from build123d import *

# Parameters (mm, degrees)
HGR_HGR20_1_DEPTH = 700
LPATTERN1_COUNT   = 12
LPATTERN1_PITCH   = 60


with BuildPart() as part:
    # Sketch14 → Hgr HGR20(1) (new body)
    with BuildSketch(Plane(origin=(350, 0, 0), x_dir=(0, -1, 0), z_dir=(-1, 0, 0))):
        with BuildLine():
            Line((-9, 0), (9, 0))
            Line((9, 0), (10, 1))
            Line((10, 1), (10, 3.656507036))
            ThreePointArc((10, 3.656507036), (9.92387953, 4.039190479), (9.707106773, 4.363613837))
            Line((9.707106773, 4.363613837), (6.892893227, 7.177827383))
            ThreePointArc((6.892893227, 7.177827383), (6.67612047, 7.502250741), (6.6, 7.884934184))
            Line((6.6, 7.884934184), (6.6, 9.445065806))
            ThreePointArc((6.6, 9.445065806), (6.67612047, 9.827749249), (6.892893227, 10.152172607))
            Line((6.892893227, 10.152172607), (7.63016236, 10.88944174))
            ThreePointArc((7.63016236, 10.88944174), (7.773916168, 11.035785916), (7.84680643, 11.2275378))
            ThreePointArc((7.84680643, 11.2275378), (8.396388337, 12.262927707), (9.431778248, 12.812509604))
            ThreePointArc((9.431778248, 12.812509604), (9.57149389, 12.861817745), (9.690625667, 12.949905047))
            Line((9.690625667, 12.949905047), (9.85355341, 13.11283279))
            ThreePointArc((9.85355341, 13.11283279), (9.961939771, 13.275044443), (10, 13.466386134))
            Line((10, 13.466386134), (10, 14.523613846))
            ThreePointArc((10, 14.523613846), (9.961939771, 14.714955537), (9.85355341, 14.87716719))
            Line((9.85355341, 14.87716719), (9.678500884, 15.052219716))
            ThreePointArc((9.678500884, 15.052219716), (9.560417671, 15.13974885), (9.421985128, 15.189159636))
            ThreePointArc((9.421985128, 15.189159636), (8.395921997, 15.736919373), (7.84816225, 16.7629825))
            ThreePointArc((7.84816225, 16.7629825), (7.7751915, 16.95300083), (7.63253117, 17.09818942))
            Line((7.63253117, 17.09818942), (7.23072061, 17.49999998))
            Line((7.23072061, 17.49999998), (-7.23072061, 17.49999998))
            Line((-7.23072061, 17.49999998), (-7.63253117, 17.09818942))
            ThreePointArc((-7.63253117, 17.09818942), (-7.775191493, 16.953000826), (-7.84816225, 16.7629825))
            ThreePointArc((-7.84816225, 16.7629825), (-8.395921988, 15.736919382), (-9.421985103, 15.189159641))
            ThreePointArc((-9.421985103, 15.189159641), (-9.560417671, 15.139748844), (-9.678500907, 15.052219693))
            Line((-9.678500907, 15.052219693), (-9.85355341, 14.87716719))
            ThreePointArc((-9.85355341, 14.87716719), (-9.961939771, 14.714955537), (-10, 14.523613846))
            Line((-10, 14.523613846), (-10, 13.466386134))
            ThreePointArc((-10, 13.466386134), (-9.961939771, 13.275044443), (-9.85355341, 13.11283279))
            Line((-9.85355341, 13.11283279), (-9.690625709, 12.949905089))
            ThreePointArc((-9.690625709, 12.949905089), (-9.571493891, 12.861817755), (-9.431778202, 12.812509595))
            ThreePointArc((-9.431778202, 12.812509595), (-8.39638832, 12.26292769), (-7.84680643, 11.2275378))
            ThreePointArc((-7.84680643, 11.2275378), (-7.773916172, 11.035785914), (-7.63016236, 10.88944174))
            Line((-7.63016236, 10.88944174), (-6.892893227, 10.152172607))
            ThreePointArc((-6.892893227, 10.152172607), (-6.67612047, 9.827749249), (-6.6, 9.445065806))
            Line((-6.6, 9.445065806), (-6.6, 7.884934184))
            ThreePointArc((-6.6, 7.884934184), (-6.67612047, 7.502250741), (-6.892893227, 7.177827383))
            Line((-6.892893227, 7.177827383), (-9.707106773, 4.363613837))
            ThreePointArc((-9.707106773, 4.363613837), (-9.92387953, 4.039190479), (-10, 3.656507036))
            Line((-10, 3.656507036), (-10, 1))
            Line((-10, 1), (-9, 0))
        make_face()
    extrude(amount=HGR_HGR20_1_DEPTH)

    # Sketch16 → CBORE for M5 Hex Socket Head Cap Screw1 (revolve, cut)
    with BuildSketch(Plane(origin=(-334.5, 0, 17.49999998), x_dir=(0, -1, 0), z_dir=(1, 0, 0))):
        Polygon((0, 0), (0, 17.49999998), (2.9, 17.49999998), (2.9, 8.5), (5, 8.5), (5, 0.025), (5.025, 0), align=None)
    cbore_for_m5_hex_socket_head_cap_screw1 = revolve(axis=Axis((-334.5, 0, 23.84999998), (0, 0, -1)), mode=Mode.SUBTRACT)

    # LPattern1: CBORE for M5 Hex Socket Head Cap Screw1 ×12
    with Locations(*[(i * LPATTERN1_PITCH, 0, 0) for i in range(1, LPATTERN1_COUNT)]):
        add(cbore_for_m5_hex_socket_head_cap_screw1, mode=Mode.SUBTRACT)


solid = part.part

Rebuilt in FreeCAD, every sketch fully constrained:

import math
import FreeCAD as App
import Part
import Sketcher

V = App.Vector
Q = App.Units.Quantity


def add_polygon(sketch, points):
    """Adds a closed chain of lines whose ends are joined by coincident constraints."""
    first, n = sketch.GeometryCount, len(points)
    for a, b in zip(points, points[1:] + points[:1]):
        sketch.addGeometry(Part.LineSegment(App.Vector(*a, 0), App.Vector(*b, 0)), False)
    for i in range(n):
        sketch.addConstraint(Sketcher.Constraint("Coincident", first + i, 2, first + (i + 1) % n, 1))

doc = App.newDocument("Part")
params = doc.addObject("Spreadsheet::Sheet", "Params")
for row, (alias, value) in enumerate([
    ("sketch1_radius", "1 mm"),
    ("sketch1_radius2", "1 mm"),
    ("sketch1_radius3", "1 mm"),
    ("sketch1_radius4", "2 mm"),
    ("sketch1_radius5", "2 mm"),
    ("pad1_length", "700 mm"),
    ("sketch2_height", "9 mm"),
    ("sketch2_width", "2.1 mm"),
    ("sketch2_width2", "2.9 mm"),
    ("sketch2_height2", "17.5 mm"),
    ("groove_angle", "360 deg"),
    ("linearpattern_pitch", "60 mm"),
], start=1):
    params.set(f"A{row}", alias)
    params.set(f"B{row}", "=" + value)
    params.setAlias(f"B{row}", alias)

body = doc.addObject("PartDesign::Body", "Body")

# Sketch on YZ plane
sketch1 = body.newObject("Sketcher::SketchObject", "Sketch")
sketch1.AttachmentSupport = (doc.getObject("YZ_Plane"), [""])
sketch1.MapMode = "FlatFace"
sketch1.AttachmentOffset = App.Placement(V(0, 0, 350), App.Rotation())
sketch1.addGeometry(Part.LineSegment(V(9, 0, 0), V(-9, 0, 0)), False)
sketch1.addGeometry(Part.LineSegment(V(-9, 0, 0), V(-10, 1, 0)), False)
sketch1.addGeometry(Part.LineSegment(V(-10, 1, 0), V(-10, 3.656507, 0)), False)
sketch1.addGeometry(Part.ArcOfCircle(Part.Circle(V(-9, 3.656507, 0), V(0, 0, 1), 1), math.radians(135), math.radians(180)), False)
sketch1.addGeometry(Part.LineSegment(V(-9.707107, 4.363614, 0), V(-6.892893, 7.177827, 0)), False)
sketch1.addGeometry(Part.ArcOfCircle(Part.Circle(V(-7.6, 7.884934, 0), V(0, 0, 1), 1), math.radians(-45), math.radians(0)), False)
sketch1.addGeometry(Part.LineSegment(V(-6.6, 7.884934, 0), V(-6.6, 9.445066, 0)), False)
sketch1.addGeometry(Part.ArcOfCircle(Part.Circle(V(-7.6, 9.445066, 0), V(0, 0, 1), 1), math.radians(0), math.radians(45)), False)
sketch1.addGeometry(Part.LineSegment(V(-6.892893, 10.152173, 0), V(-7.630162, 10.889442, 0)), False)
sketch1.addGeometry(Part.ArcOfCircle(Part.Circle(V(-7.352929, 11.305545, 0), V(0, 0, 1), 0.5), math.radians(-171.024402), math.radians(-123.673995)), False)
sketch1.addGeometry(Part.ArcOfCircle(Part.Circle(V(-9.810602, 10.848714, 0), V(0, 0, 1), 2), math.radians(10.918461), math.radians(79.081539)), False)
sketch1.addGeometry(Part.ArcOfCircle(Part.Circle(V(-9.337072, 13.303458, 0), V(0, 0, 1), 0.5), math.radians(-135), math.radians(-100.91846)), False)
sketch1.addGeometry(Part.LineSegment(V(-9.690626, 12.949905, 0), V(-9.853553, 13.112833, 0)), False)
sketch1.addGeometry(Part.ArcOfCircle(Part.Circle(V(-9.5, 13.466386, 0), V(0, 0, 1), 0.5), math.radians(-180), math.radians(-135)), False)
sketch1.addGeometry(Part.LineSegment(V(-10, 13.466386, 0), V(-10, 14.523614, 0)), False)
sketch1.addGeometry(Part.ArcOfCircle(Part.Circle(V(-9.5, 14.523614, 0), V(0, 0, 1), 0.5), math.radians(135), math.radians(180)), False)
sketch1.addGeometry(Part.LineSegment(V(-9.853553, 14.877167, 0), V(-9.678501, 15.05222, 0)), False)
sketch1.addGeometry(Part.ArcOfCircle(Part.Circle(V(-9.324948, 14.698666, 0), V(0, 0, 1), 0.5), math.radians(101.190705), math.radians(135)), False)
sketch1.addGeometry(Part.ArcOfCircle(Part.Circle(V(-9.810136, 17.151133, 0), V(0, 0, 1), 2), math.radians(-78.809295), math.radians(-11.190706)), False)
sketch1.addGeometry(Part.ArcOfCircle(Part.Circle(V(-7.354683, 16.682497, 0), V(0, 0, 1), 0.5), math.radians(123.758731), math.radians(170.736737)), False)
sketch1.addGeometry(Part.LineSegment(V(-7.632531, 17.098189, 0), V(-7.230721, 17.5, 0)), False)
sketch1.addGeometry(Part.LineSegment(V(-7.230721, 17.5, 0), V(7.230721, 17.5, 0)), False)
sketch1.addGeometry(Part.LineSegment(V(7.230721, 17.5, 0), V(7.632531, 17.098189, 0)), False)
sketch1.addGeometry(Part.ArcOfCircle(Part.Circle(V(7.354683, 16.682497, 0), V(0, 0, 1), 0.5), math.radians(9.263268), math.radians(56.241265)), False)
sketch1.addGeometry(Part.ArcOfCircle(Part.Circle(V(9.810136, 17.151133, 0), V(0, 0, 1), 2), math.radians(-168.809294), math.radians(-101.190706)), False)
sketch1.addGeometry(Part.ArcOfCircle(Part.Circle(V(9.324947, 14.698666, 0), V(0, 0, 1), 0.5), math.radians(45), math.radians(78.809294)), False)
sketch1.addGeometry(Part.LineSegment(V(9.678501, 15.05222, 0), V(9.853553, 14.877167, 0)), False)
sketch1.addGeometry(Part.ArcOfCircle(Part.Circle(V(9.5, 14.523614, 0), V(0, 0, 1), 0.5), math.radians(0), math.radians(45)), False)
sketch1.addGeometry(Part.LineSegment(V(10, 14.523614, 0), V(10, 13.466386, 0)), False)
sketch1.addGeometry(Part.ArcOfCircle(Part.Circle(V(9.5, 13.466386, 0), V(0, 0, 1), 0.5), math.radians(-45), math.radians(0)), False)
sketch1.addGeometry(Part.LineSegment(V(9.853553, 13.112833, 0), V(9.690626, 12.949905, 0)), False)
sketch1.addGeometry(Part.ArcOfCircle(Part.Circle(V(9.337072, 13.303459, 0), V(0, 0, 1), 0.5), math.radians(-79.081539), math.radians(-45)), False)
sketch1.addGeometry(Part.ArcOfCircle(Part.Circle(V(9.810602, 10.848714, 0), V(0, 0, 1), 2), math.radians(100.918462), math.radians(169.081539)), False)
sketch1.addGeometry(Part.ArcOfCircle(Part.Circle(V(7.352929, 11.305545, 0), V(0, 0, 1), 0.5), math.radians(-56.326007), math.radians(-8.975596)), False)
sketch1.addGeometry(Part.LineSegment(V(7.630162, 10.889442, 0), V(6.892893, 10.152173, 0)), False)
sketch1.addGeometry(Part.ArcOfCircle(Part.Circle(V(7.6, 9.445066, 0), V(0, 0, 1), 1), math.radians(135), math.radians(180)), False)
sketch1.addGeometry(Part.LineSegment(V(6.6, 9.445066, 0), V(6.6, 7.884934, 0)), False)
sketch1.addGeometry(Part.ArcOfCircle(Part.Circle(V(7.6, 7.884934, 0), V(0, 0, 1), 1), math.radians(-180), math.radians(-135)), False)
sketch1.addGeometry(Part.LineSegment(V(6.892893, 7.177827, 0), V(9.707107, 4.363614, 0)), False)
sketch1.addGeometry(Part.ArcOfCircle(Part.Circle(V(9, 3.656507, 0), V(0, 0, 1), 1), math.radians(0), math.radians(45)), False)
sketch1.addGeometry(Part.LineSegment(V(10, 3.656507, 0), V(10, 1, 0)), False)
sketch1.addGeometry(Part.LineSegment(V(10, 1, 0), V(9, 0, 0)), False)
sketch1.addConstraint(Sketcher.Constraint("Coincident", 0, 2, 1, 1))
sketch1.addConstraint(Sketcher.Constraint("Coincident", 1, 2, 2, 1))
sketch1.addConstraint(Sketcher.Constraint("Coincident", 2, 2, 3, 2))
sketch1.addConstraint(Sketcher.Constraint("Coincident", 3, 1, 4, 1))
sketch1.addConstraint(Sketcher.Constraint("Coincident", 4, 2, 5, 1))
sketch1.addConstraint(Sketcher.Constraint("Coincident", 5, 2, 6, 1))
sketch1.addConstraint(Sketcher.Constraint("Coincident", 6, 2, 7, 1))
sketch1.addConstraint(Sketcher.Constraint("Coincident", 7, 2, 8, 1))
sketch1.addConstraint(Sketcher.Constraint("Coincident", 8, 2, 9, 2))
sketch1.addConstraint(Sketcher.Constraint("Coincident", 9, 1, 10, 1))
sketch1.addConstraint(Sketcher.Constraint("Coincident", 10, 2, 11, 2))
sketch1.addConstraint(Sketcher.Constraint("Coincident", 11, 1, 12, 1))
sketch1.addConstraint(Sketcher.Constraint("Coincident", 12, 2, 13, 2))
sketch1.addConstraint(Sketcher.Constraint("Coincident", 13, 1, 14, 1))
sketch1.addConstraint(Sketcher.Constraint("Coincident", 14, 2, 15, 2))
sketch1.addConstraint(Sketcher.Constraint("Coincident", 15, 1, 16, 1))
sketch1.addConstraint(Sketcher.Constraint("Coincident", 16, 2, 17, 2))
sketch1.addConstraint(Sketcher.Constraint("Coincident", 17, 1, 18, 1))
sketch1.addConstraint(Sketcher.Constraint("Coincident", 18, 2, 19, 2))
sketch1.addConstraint(Sketcher.Constraint("Coincident", 19, 1, 20, 1))
sketch1.addConstraint(Sketcher.Constraint("Coincident", 20, 2, 21, 1))
sketch1.addConstraint(Sketcher.Constraint("Coincident", 21, 2, 22, 1))
sketch1.addConstraint(Sketcher.Constraint("Coincident", 22, 2, 23, 2))
sketch1.addConstraint(Sketcher.Constraint("Coincident", 23, 1, 24, 1))
sketch1.addConstraint(Sketcher.Constraint("Coincident", 24, 2, 25, 2))
sketch1.addConstraint(Sketcher.Constraint("Coincident", 25, 1, 26, 1))
sketch1.addConstraint(Sketcher.Constraint("Coincident", 26, 2, 27, 2))
sketch1.addConstraint(Sketcher.Constraint("Coincident", 27, 1, 28, 1))
sketch1.addConstraint(Sketcher.Constraint("Coincident", 28, 2, 29, 2))
sketch1.addConstraint(Sketcher.Constraint("Coincident", 29, 1, 30, 1))
sketch1.addConstraint(Sketcher.Constraint("Coincident", 30, 2, 31, 2))
sketch1.addConstraint(Sketcher.Constraint("Coincident", 31, 1, 32, 1))
sketch1.addConstraint(Sketcher.Constraint("Coincident", 32, 2, 33, 2))
sketch1.addConstraint(Sketcher.Constraint("Coincident", 33, 1, 34, 1))
sketch1.addConstraint(Sketcher.Constraint("Coincident", 34, 2, 35, 1))
sketch1.addConstraint(Sketcher.Constraint("Coincident", 35, 2, 36, 1))
sketch1.addConstraint(Sketcher.Constraint("Coincident", 36, 2, 37, 1))
sketch1.addConstraint(Sketcher.Constraint("Coincident", 37, 2, 38, 1))
sketch1.addConstraint(Sketcher.Constraint("Coincident", 38, 2, 39, 2))
sketch1.addConstraint(Sketcher.Constraint("Coincident", 39, 1, 40, 1))
sketch1.addConstraint(Sketcher.Constraint("Coincident", 40, 2, 41, 1))
sketch1.addConstraint(Sketcher.Constraint("Coincident", 41, 2, 0, 1))
sketch1.addConstraint(Sketcher.Constraint("Horizontal", 0))
sketch1.addConstraint(Sketcher.Constraint("Vertical", 2))
sketch1.addConstraint(Sketcher.Constraint("Vertical", 6))
sketch1.addConstraint(Sketcher.Constraint("Vertical", 14))
sketch1.addConstraint(Sketcher.Constraint("Horizontal", 21))
sketch1.addConstraint(Sketcher.Constraint("Vertical", 28))
sketch1.addConstraint(Sketcher.Constraint("Vertical", 36))
sketch1.addConstraint(Sketcher.Constraint("Vertical", 40))
sketch1.addConstraint(Sketcher.Constraint("PointOnObject", 0, 2, -1))
sketch1.addConstraint(Sketcher.Constraint("Radius", 3, Q("1 mm")))
sketch1.addConstraint(Sketcher.Constraint("Radius", 5, Q("1 mm")))
sketch1.addConstraint(Sketcher.Constraint("Radius", 7, Q("1 mm")))
sketch1.addConstraint(Sketcher.Constraint("Radius", 10, Q("2 mm")))
sketch1.addConstraint(Sketcher.Constraint("Radius", 18, Q("2 mm")))
sketch1.addConstraint(Sketcher.Constraint("Radius", 24, Q("2 mm")))
sketch1.addConstraint(Sketcher.Constraint("Radius", 32, Q("2 mm")))
sketch1.addConstraint(Sketcher.Constraint("Radius", 35, Q("1 mm")))
sketch1.addConstraint(Sketcher.Constraint("Radius", 37, Q("1 mm")))
sketch1.addConstraint(Sketcher.Constraint("Radius", 39, Q("1 mm")))
sketch1.addConstraint(Sketcher.Constraint("Radius", 9, Q("0.5 mm")))
sketch1.addConstraint(Sketcher.Constraint("Radius", 11, Q("0.5 mm")))
sketch1.addConstraint(Sketcher.Constraint("Radius", 13, Q("0.5 mm")))
sketch1.addConstraint(Sketcher.Constraint("Radius", 15, Q("0.5 mm")))
sketch1.addConstraint(Sketcher.Constraint("Radius", 17, Q("0.5 mm")))
sketch1.addConstraint(Sketcher.Constraint("Radius", 19, Q("0.5 mm")))
sketch1.addConstraint(Sketcher.Constraint("Radius", 23, Q("0.5 mm")))
sketch1.addConstraint(Sketcher.Constraint("Radius", 25, Q("0.5 mm")))
sketch1.addConstraint(Sketcher.Constraint("Radius", 27, Q("0.5 mm")))
sketch1.addConstraint(Sketcher.Constraint("Radius", 29, Q("0.5 mm")))
sketch1.addConstraint(Sketcher.Constraint("Radius", 31, Q("0.5 mm")))
sketch1.addConstraint(Sketcher.Constraint("Radius", 33, Q("0.5 mm")))
sketch1.addConstraint(Sketcher.Constraint("DistanceX", 0, 2, 0, 1, Q("18 mm")))
sketch1.addConstraint(Sketcher.Constraint("DistanceX", 3, 3, -1, 1, Q("9 mm")))
sketch1.addConstraint(Sketcher.Constraint("DistanceX", -1, 1, 39, 3, Q("9 mm")))
sketch1.addConstraint(Sketcher.Constraint("DistanceX", 0, 2, -1, 1, Q("9 mm")))
sketch1.addConstraint(Sketcher.Constraint("DistanceY", -1, 1, 1, 2, Q("1 mm")))
sketch1.addConstraint(Sketcher.Constraint("DistanceX", 13, 1, -1, 1, Q("10 mm")))
sketch1.addConstraint(Sketcher.Constraint("DistanceX", -1, 1, 27, 1, Q("10 mm")))
sketch1.addConstraint(Sketcher.Constraint("DistanceY", -1, 1, 40, 2, Q("1 mm")))
sketch1.addConstraint(Sketcher.Constraint("DistanceX", 5, 3, -1, 1, Q("7.6 mm")))
sketch1.addConstraint(Sketcher.Constraint("DistanceX", -1, 1, 35, 3, Q("7.6 mm")))
sketch1.addConstraint(Sketcher.Constraint("DistanceY", -1, 1, 20, 2, Q("17.5 mm")))
sketch1.addConstraint(Sketcher.Constraint("Distance", 4, Q("3.979899 mm")))
sketch1.addConstraint(Sketcher.Constraint("Distance", 38, Q("3.979899 mm")))
sketch1.addConstraint(Sketcher.Constraint("DistanceX", 21, 1, 21, 2, Q("14.461441 mm")))
sketch1.addConstraint(Sketcher.Constraint("DistanceY", 6, 1, 6, 2, Q("1.560132 mm")))
sketch1.addConstraint(Sketcher.Constraint("DistanceY", 36, 2, 36, 1, Q("1.560132 mm")))
sketch1.addConstraint(Sketcher.Constraint("DistanceX", 10, 3, -1, 1, Q("9.810602 mm")))
sketch1.addConstraint(Sketcher.Constraint("DistanceX", -1, 1, 32, 3, Q("9.810602 mm")))
sketch1.addConstraint(Sketcher.Constraint("DistanceX", 16, 2, -1, 1, Q("9.678501 mm")))
sketch1.addConstraint(Sketcher.Constraint("DistanceX", -1, 1, 25, 1, Q("9.678501 mm")))
sketch1.addConstraint(Sketcher.Constraint("Distance", 16, Q("0.247562 mm")))
sketch1.addConstraint(Sketcher.Constraint("Distance", 26, Q("0.247562 mm")))
sketch1.addConstraint(Sketcher.Constraint("DistanceY", 2, 1, 2, 2, Q("2.656507 mm")))
sketch1.addConstraint(Sketcher.Constraint("DistanceY", 14, 1, 14, 2, Q("1.057228 mm")))
sketch1.addConstraint(Sketcher.Constraint("DistanceY", 28, 2, 28, 1, Q("1.057228 mm")))
sketch1.addConstraint(Sketcher.Constraint("DistanceY", 40, 2, 40, 1, Q("2.656507 mm")))
sketch1.addConstraint(Sketcher.Constraint("DistanceX", 9, 3, -1, 1, Q("7.352929 mm")))
sketch1.addConstraint(Sketcher.Constraint("DistanceY", -1, 1, 11, 3, Q("13.303458 mm")))
sketch1.addConstraint(Sketcher.Constraint("DistanceY", -1, 1, 31, 3, Q("13.303459 mm")))
sketch1.addConstraint(Sketcher.Constraint("DistanceX", -1, 1, 33, 3, Q("7.352929 mm")))
sketch1.addConstraint(Sketcher.Constraint("DistanceY", -1, 1, 8, 2, Q("10.889442 mm")))
sketch1.addConstraint(Sketcher.Constraint("DistanceX", 10, 2, -1, 1, Q("9.431778 mm")))
sketch1.addConstraint(Sketcher.Constraint("DistanceY", -1, 1, 10, 2, Q("12.81251 mm")))
sketch1.addConstraint(Sketcher.Constraint("DistanceY", -1, 1, 16, 2, Q("15.05222 mm")))
sketch1.addConstraint(Sketcher.Constraint("DistanceY", -1, 1, 17, 1, Q("15.18916 mm")))
sketch1.addConstraint(Sketcher.Constraint("DistanceX", 19, 1, -1, 1, Q("7.632531 mm")))
sketch1.addConstraint(Sketcher.Constraint("DistanceY", -1, 1, 19, 1, Q("17.098189 mm")))
sketch1.addConstraint(Sketcher.Constraint("DistanceX", 20, 2, -1, 1, Q("7.230721 mm")))
sketch1.addConstraint(Sketcher.Constraint("DistanceX", -1, 1, 22, 2, Q("7.632531 mm")))
sketch1.addConstraint(Sketcher.Constraint("DistanceY", -1, 1, 22, 2, Q("17.098189 mm")))
sketch1.addConstraint(Sketcher.Constraint("DistanceY", -1, 1, 24, 2, Q("15.18916 mm")))
sketch1.addConstraint(Sketcher.Constraint("DistanceY", -1, 1, 25, 1, Q("15.05222 mm")))
sketch1.addConstraint(Sketcher.Constraint("DistanceX", -1, 1, 31, 1, Q("9.431778 mm")))
sketch1.addConstraint(Sketcher.Constraint("DistanceY", -1, 1, 31, 1, Q("12.81251 mm")))
sketch1.addConstraint(Sketcher.Constraint("DistanceY", -1, 1, 33, 1, Q("10.889442 mm")))
sketch1.addConstraint(Sketcher.Constraint("Distance", 8, Q("1.042656 mm")))
sketch1.addConstraint(Sketcher.Constraint("Distance", 12, Q("0.230415 mm")))
sketch1.addConstraint(Sketcher.Constraint("Distance", 30, Q("0.230415 mm")))
sketch1.addConstraint(Sketcher.Constraint("Distance", 34, Q("1.042656 mm")))
sketch1.addConstraint(Sketcher.Constraint("DistanceY", -1, 1, 3, 3, Q("3.656507 mm")))
sketch1.addConstraint(Sketcher.Constraint("DistanceY", -1, 1, 5, 3, Q("7.884934 mm")))
sketch1.addConstraint(Sketcher.Constraint("DistanceY", -1, 1, 7, 3, Q("9.445066 mm")))
sketch1.addConstraint(Sketcher.Constraint("DistanceY", -1, 1, 9, 3, Q("11.305545 mm")))
sketch1.addConstraint(Sketcher.Constraint("DistanceY", -1, 1, 13, 3, Q("13.466386 mm")))
sketch1.addConstraint(Sketcher.Constraint("DistanceY", -1, 1, 15, 3, Q("14.523614 mm")))
sketch1.addConstraint(Sketcher.Constraint("DistanceX", 17, 3, -1, 1, Q("9.324948 mm")))
sketch1.addConstraint(Sketcher.Constraint("DistanceX", 18, 3, -1, 1, Q("9.810136 mm")))
sketch1.addConstraint(Sketcher.Constraint("DistanceX", 19, 3, -1, 1, Q("7.354683 mm")))
sketch1.addConstraint(Sketcher.Constraint("DistanceX", -1, 1, 23, 3, Q("7.354683 mm")))
sketch1.addConstraint(Sketcher.Constraint("DistanceX", -1, 1, 24, 3, Q("9.810136 mm")))
sketch1.addConstraint(Sketcher.Constraint("DistanceY", -1, 1, 24, 3, Q("17.151133 mm")))
sketch1.addConstraint(Sketcher.Constraint("DistanceY", -1, 1, 27, 3, Q("14.523614 mm")))
sketch1.addConstraint(Sketcher.Constraint("DistanceY", -1, 1, 29, 3, Q("13.466386 mm")))
sketch1.addConstraint(Sketcher.Constraint("DistanceY", -1, 1, 33, 3, Q("11.305545 mm")))
sketch1.addConstraint(Sketcher.Constraint("DistanceY", -1, 1, 35, 3, Q("9.445066 mm")))
sketch1.addConstraint(Sketcher.Constraint("DistanceY", -1, 1, 37, 3, Q("7.884934 mm")))
sketch1.addConstraint(Sketcher.Constraint("DistanceY", -1, 1, 39, 3, Q("3.656507 mm")))
sketch1.addConstraint(Sketcher.Constraint("DistanceX", 3, 1, -1, 1, Q("9.707107 mm")))
sketch1.addConstraint(Sketcher.Constraint("DistanceY", -1, 1, 5, 2, Q("7.884934 mm")))
sketch1.addConstraint(Sketcher.Constraint("DistanceX", 11, 1, -1, 1, Q("9.690626 mm")))
sketch1.addConstraint(Sketcher.Constraint("DistanceY", -1, 1, 13, 1, Q("13.466386 mm")))
sketch1.addConstraint(Sketcher.Constraint("DistanceY", -1, 1, 27, 1, Q("14.523614 mm")))
sketch1.addConstraint(Sketcher.Constraint("DistanceX", -1, 1, 29, 1, Q("9.853553 mm")))
sketch1.addConstraint(Sketcher.Constraint("DistanceY", -1, 1, 35, 2, Q("9.445066 mm")))
sketch1.addConstraint(Sketcher.Constraint("DistanceX", -1, 1, 37, 2, Q("6.892893 mm")))
sketch1.setExpression("Constraints[51]", "Params.sketch1_radius")
sketch1.setExpression("Constraints[52]", "Params.sketch1_radius2")
sketch1.setExpression("Constraints[53]", "Params.sketch1_radius3")
sketch1.setExpression("Constraints[54]", "Params.sketch1_radius4")
sketch1.setExpression("Constraints[55]", "Params.sketch1_radius5")
pad1 = body.newObject("PartDesign::Pad", "Pad")
pad1.Profile = sketch1
pad1.setExpression("Length", "Params.pad1_length")
pad1.Reversed = True

# Sketch on YZ plane
sketch2 = body.newObject("Sketcher::SketchObject", "Sketch001")
sketch2.AttachmentSupport = (doc.getObject("YZ_Plane"), [""])
sketch2.MapMode = "FlatFace"
sketch2.AttachmentOffset = App.Placement(V(0, 0, -334.5), App.Rotation())
add_polygon(sketch2, [(0, 0), (0, 17.5), (-5.025, 17.5), (-5, 17.475), (-5, 9), (-2.9, 9), (-2.9, 0)])  # lines 0-6
sketch2.addConstraint(Sketcher.Constraint("Vertical", 0))
sketch2.addConstraint(Sketcher.Constraint("Horizontal", 1))
sketch2.addConstraint(Sketcher.Constraint("Vertical", 3))
sketch2.addConstraint(Sketcher.Constraint("Horizontal", 4))
sketch2.addConstraint(Sketcher.Constraint("Vertical", 5))
sketch2.addConstraint(Sketcher.Constraint("Horizontal", 6))
sketch2.addConstraint(Sketcher.Constraint("Coincident", 6, 2, -1, 1))
sketch2.addConstraint(Sketcher.Constraint("DistanceY", 5, 2, 5, 1, Q("9 mm")))
sketch2.addConstraint(Sketcher.Constraint("Angle", 2, Q("-45 deg")))
sketch2.addConstraint(Sketcher.Constraint("DistanceX", 4, 1, 4, 2, Q("2.1 mm")))
sketch2.addConstraint(Sketcher.Constraint("DistanceX", 6, 1, 6, 2, Q("2.9 mm")))
sketch2.addConstraint(Sketcher.Constraint("DistanceY", 0, 1, 0, 2, Q("17.5 mm")))
sketch2.addConstraint(Sketcher.Constraint("DistanceX", 1, 2, 1, 1, Q("5.025 mm")))
sketch2.setExpression("Constraints[14]", "Params.sketch2_height")
sketch2.setExpression("Constraints[16]", "Params.sketch2_width")
sketch2.setExpression("Constraints[17]", "Params.sketch2_width2")
sketch2.setExpression("Constraints[18]", "Params.sketch2_height2")
groove = body.newObject("PartDesign::Groove", "Groove")
groove.Profile = sketch2
groove.ReferenceAxis = (sketch2, ["V_Axis"])
groove.setExpression("Angle", "Params.groove_angle")
doc.recompute()

linearpattern = body.newObject("PartDesign::LinearPattern", "LinearPattern")
linearpattern.Originals = [groove]
linearpattern.Direction = (doc.getObject("X_Axis"), [""])
linearpattern.Mode = "offset"
linearpattern.setExpression("Offset", "Params.linearpattern_pitch")
linearpattern.Occurrences = 12
body.Tip = linearpattern

doc.recompute()
